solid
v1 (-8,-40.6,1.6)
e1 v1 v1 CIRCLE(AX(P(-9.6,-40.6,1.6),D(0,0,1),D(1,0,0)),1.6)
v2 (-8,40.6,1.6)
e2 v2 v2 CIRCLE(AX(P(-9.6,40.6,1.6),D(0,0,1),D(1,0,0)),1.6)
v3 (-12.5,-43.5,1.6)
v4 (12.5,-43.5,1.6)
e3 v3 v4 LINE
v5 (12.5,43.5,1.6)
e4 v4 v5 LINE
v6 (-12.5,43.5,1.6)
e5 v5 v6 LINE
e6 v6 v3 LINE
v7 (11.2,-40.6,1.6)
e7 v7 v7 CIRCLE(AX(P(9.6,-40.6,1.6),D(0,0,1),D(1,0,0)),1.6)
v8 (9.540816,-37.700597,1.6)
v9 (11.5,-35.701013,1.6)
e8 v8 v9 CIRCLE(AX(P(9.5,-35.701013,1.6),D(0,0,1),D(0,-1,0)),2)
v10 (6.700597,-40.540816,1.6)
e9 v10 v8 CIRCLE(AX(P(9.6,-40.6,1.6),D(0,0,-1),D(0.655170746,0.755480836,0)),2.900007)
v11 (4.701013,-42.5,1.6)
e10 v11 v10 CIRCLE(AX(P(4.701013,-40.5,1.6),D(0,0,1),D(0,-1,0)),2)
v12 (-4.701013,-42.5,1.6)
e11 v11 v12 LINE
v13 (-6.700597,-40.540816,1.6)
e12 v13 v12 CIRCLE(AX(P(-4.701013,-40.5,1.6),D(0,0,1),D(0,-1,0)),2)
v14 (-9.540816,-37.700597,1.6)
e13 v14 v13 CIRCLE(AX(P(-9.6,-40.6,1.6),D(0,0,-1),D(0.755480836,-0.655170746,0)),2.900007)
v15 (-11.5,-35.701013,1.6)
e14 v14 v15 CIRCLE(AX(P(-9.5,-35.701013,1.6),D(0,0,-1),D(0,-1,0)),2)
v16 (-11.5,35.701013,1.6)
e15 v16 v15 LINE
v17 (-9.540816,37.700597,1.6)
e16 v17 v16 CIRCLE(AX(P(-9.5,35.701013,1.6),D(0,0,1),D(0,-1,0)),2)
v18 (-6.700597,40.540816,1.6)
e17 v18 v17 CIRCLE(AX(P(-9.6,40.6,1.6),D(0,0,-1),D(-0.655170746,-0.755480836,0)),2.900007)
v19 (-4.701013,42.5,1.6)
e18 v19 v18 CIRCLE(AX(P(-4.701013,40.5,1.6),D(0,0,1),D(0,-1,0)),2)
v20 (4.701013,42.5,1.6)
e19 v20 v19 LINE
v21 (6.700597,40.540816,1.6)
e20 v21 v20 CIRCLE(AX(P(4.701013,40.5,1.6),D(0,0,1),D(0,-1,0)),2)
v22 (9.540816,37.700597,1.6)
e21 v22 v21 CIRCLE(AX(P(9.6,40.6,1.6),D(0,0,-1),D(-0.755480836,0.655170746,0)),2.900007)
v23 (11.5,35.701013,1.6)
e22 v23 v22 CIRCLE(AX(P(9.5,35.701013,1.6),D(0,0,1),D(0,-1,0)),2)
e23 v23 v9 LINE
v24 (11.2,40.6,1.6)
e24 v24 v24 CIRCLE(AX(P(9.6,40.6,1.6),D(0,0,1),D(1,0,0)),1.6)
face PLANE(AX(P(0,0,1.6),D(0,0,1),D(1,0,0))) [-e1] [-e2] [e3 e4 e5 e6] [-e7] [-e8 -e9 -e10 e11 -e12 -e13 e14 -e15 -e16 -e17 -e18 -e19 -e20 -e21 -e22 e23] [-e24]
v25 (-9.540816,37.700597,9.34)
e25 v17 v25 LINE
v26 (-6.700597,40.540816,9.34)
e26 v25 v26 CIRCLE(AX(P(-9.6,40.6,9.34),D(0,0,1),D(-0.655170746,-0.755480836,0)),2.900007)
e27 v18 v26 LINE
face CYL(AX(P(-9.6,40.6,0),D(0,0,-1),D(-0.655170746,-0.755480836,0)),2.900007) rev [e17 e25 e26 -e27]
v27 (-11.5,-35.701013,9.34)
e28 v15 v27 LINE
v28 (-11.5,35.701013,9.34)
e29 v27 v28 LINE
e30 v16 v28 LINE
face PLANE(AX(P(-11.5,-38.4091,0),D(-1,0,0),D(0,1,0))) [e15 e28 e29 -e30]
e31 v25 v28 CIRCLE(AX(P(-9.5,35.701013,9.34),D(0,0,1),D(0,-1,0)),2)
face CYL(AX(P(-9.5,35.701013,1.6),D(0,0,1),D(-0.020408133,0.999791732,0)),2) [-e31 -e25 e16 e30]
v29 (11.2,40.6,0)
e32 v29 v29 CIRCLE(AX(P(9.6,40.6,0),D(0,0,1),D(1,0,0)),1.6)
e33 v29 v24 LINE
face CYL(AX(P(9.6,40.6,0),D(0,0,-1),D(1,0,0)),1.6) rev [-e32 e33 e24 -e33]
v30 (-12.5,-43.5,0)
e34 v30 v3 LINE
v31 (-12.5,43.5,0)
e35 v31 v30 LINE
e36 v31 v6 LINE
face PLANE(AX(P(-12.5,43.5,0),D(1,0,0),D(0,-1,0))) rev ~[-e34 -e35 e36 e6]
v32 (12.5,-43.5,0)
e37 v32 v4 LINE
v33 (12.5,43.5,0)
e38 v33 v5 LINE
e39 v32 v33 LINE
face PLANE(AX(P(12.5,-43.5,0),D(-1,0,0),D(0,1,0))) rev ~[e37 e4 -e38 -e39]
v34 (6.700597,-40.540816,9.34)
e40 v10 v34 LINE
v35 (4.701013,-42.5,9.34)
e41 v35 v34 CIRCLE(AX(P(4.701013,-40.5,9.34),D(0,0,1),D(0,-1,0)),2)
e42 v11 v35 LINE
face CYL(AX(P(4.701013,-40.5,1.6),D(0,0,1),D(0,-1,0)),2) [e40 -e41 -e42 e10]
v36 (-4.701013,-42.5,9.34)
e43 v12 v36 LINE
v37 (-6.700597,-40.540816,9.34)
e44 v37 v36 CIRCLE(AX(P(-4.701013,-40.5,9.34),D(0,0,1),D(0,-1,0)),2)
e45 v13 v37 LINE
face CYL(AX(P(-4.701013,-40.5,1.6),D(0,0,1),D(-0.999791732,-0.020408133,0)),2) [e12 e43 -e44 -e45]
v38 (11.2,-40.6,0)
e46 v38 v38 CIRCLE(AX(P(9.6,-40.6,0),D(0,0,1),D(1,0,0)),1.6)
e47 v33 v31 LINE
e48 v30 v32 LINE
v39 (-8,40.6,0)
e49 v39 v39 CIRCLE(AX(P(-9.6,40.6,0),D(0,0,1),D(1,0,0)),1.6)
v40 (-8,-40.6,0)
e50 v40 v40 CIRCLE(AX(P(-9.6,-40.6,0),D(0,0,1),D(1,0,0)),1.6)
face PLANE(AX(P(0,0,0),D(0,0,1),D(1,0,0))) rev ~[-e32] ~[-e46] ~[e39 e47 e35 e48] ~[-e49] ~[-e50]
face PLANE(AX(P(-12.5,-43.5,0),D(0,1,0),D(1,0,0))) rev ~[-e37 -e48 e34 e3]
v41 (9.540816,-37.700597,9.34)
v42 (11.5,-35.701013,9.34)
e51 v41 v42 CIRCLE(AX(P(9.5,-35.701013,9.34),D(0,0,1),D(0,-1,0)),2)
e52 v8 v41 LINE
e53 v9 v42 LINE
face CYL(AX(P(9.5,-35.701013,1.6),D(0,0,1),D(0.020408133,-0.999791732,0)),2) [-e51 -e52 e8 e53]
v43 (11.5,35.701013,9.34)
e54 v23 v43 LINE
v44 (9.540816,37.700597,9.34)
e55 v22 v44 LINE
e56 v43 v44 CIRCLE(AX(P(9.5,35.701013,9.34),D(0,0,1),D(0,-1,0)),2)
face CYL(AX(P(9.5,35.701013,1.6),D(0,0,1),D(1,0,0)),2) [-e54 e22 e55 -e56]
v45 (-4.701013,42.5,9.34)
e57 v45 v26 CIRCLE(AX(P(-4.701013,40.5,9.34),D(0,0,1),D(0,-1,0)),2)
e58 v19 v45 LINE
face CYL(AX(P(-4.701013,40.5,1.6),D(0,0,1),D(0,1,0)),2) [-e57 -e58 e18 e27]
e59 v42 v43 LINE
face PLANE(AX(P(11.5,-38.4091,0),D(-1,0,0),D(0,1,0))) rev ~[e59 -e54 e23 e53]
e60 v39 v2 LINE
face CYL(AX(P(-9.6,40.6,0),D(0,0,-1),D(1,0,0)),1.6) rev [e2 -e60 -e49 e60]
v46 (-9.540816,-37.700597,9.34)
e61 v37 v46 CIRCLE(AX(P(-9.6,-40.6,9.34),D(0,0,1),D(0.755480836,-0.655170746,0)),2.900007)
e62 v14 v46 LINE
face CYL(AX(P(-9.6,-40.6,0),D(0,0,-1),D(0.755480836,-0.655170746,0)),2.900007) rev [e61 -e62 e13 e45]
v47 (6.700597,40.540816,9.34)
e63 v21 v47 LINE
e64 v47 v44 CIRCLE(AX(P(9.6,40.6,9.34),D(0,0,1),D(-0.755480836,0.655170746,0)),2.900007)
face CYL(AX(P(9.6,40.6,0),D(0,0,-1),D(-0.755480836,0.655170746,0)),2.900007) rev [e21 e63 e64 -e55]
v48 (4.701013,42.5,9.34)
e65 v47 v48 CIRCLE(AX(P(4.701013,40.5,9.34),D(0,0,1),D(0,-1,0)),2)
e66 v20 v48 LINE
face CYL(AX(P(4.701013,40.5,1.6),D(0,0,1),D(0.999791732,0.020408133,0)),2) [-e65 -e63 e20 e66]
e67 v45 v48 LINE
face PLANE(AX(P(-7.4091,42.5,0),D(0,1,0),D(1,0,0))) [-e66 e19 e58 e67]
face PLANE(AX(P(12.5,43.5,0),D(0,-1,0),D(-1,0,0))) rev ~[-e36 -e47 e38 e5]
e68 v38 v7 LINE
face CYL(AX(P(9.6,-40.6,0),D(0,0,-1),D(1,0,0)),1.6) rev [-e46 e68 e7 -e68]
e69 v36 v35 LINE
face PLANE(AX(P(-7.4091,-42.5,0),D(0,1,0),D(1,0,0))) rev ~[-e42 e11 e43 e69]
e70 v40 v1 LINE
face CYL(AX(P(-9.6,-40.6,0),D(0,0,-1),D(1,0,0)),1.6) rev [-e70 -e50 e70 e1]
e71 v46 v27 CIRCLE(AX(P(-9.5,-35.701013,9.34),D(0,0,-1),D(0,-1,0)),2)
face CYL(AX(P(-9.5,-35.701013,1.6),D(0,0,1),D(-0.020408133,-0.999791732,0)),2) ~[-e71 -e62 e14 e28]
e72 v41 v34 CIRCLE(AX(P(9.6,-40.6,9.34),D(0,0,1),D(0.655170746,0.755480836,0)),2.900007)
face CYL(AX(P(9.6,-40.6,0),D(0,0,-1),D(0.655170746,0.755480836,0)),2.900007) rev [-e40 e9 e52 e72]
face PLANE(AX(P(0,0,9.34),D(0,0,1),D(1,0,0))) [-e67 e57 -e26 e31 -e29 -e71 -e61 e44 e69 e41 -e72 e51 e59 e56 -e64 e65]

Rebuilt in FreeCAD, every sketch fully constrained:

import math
import FreeCAD as App
import Part
import Sketcher
Q = App.Units.Quantity


def edges_at(feature, points):
    """Names of the edges that pass closest to the given points."""
    edges = feature.Shape.Edges
    near = lambda p: min(range(len(edges)), key=lambda i: edges[i].distToShape(Part.Vertex(*p))[0])
    return sorted({f"Edge{near(p) + 1}" for p in points})

doc = App.newDocument("Part")
body = doc.addObject("PartDesign::Body", "Body")

sketch1 = body.newObject("Sketcher::SketchObject", "Sketch")
sketch1.AttachmentSupport = (doc.getObject("XY_Plane"), [""])
sketch1.MapMode = "FlatFace"
sketch1.addGeometry(Part.LineSegment(App.Vector(-12.5, 43.5, 0), App.Vector(-12.5, -43.5, 0)), False)
sketch1.addGeometry(Part.LineSegment(App.Vector(-12.5, -43.5, 0), App.Vector(12.5, -43.5, 0)), False)
sketch1.addGeometry(Part.LineSegment(App.Vector(12.5, -43.5, 0), App.Vector(12.5, 43.5, 0)), False)
sketch1.addGeometry(Part.LineSegment(App.Vector(12.5, 43.5, 0), App.Vector(-12.5, 43.5, 0)), False)
sketch1.addGeometry(Part.Circle(App.Vector(-9.6, -40.6, 0), App.Vector(0, 0, 1), 1.6), False)
sketch1.addGeometry(Part.Circle(App.Vector(9.6, -40.6, 0), App.Vector(0, 0, 1), 1.6), False)
sketch1.addGeometry(Part.Circle(App.Vector(-9.6, 40.6, 0), App.Vector(0, 0, 1), 1.6), False)
sketch1.addGeometry(Part.Circle(App.Vector(9.6, 40.6, 0), App.Vector(0, 0, 1), 1.6), False)
sketch1.addConstraint(Sketcher.Constraint("Coincident", 0, 2, 1, 1))
sketch1.addConstraint(Sketcher.Constraint("Coincident", 1, 2, 2, 1))
sketch1.addConstraint(Sketcher.Constraint("Coincident", 2, 2, 3, 1))
sketch1.addConstraint(Sketcher.Constraint("Coincident", 3, 2, 0, 1))
sketch1.addConstraint(Sketcher.Constraint("Vertical", 0))
sketch1.addConstraint(Sketcher.Constraint("Horizontal", 1))
sketch1.addConstraint(Sketcher.Constraint("Vertical", 2))
sketch1.addConstraint(Sketcher.Constraint("Horizontal", 3))
sketch1.addConstraint(Sketcher.Constraint("Equal", 4, 5))
sketch1.addConstraint(Sketcher.Constraint("Equal", 5, 6))
sketch1.addConstraint(Sketcher.Constraint("Equal", 6, 7))
sketch1.addConstraint(Sketcher.Constraint("Symmetric", 5, 3, 6, 3, -1, 1))
sketch1.addConstraint(Sketcher.Constraint("Symmetric", 4, 3, 7, 3, -1, 1))
sketch1.addConstraint(Sketcher.Constraint("Symmetric", 0, 2, 2, 2, -1, 1))
sketch1.addConstraint(Sketcher.Constraint("Symmetric", 4, 3, 5, 3, -2))
sketch1.addConstraint(Sketcher.Constraint("Diameter", 4, Q("3.2 mm")))
sketch1.addConstraint(Sketcher.Constraint("DistanceX", 1, 1, 1, 2, Q("25 mm")))
sketch1.addConstraint(Sketcher.Constraint("DistanceY", 0, 2, 0, 1, Q("87 mm")))
sketch1.addConstraint(Sketcher.Constraint("DistanceX", 4, 3, 5, 3, Q("19.2 mm")))
sketch1.addConstraint(Sketcher.Constraint("DistanceY", 4, 3, 6, 3, Q("81.2 mm")))
pad1 = body.newObject("PartDesign::Pad", "Pad")
pad1.Profile = sketch1
pad1.Length = 1.6

sketch2 = body.newObject("Sketcher::SketchObject", "Sketch001")
sketch2.AttachmentSupport = (doc.getObject("XY_Plane"), [""])
sketch2.MapMode = "FlatFace"
sketch2.addGeometry(Part.ArcOfCircle(Part.Circle(App.Vector(-9.6, -40.6, 0), App.Vector(0, 0, 1), 2.9), math.radians(-41), math.radians(131)), False)
sketch2.addGeometry(Part.LineSegment(App.Vector(-7.4, -42.5, 0), App.Vector(7.4, -42.5, 0)), False)
sketch2.addGeometry(Part.ArcOfCircle(Part.Circle(App.Vector(9.6, -40.6, 0), App.Vector(0, 0, 1), 2.9), math.radians(49), math.radians(221)), False)
sketch2.addGeometry(Part.LineSegment(App.Vector(11.5, -38.4, 0), App.Vector(11.5, 38.4, 0)), False)
sketch2.addGeometry(Part.ArcOfCircle(Part.Circle(App.Vector(9.6, 40.6, 0), App.Vector(0, 0, 1), 2.9), math.radians(139), math.radians(311)), False)
sketch2.addGeometry(Part.LineSegment(App.Vector(7.4, 42.5, 0), App.Vector(-7.4, 42.5, 0)), False)
sketch2.addGeometry(Part.ArcOfCircle(Part.Circle(App.Vector(-9.6, 40.6, 0), App.Vector(0, 0, 1), 2.9), math.radians(-131), math.radians(41)), False)
sketch2.addGeometry(Part.LineSegment(App.Vector(-11.5, 38.4, 0), App.Vector(-11.5, -38.4, 0)), False)
sketch2.addConstraint(Sketcher.Constraint("Coincident", 0, 1, 1, 1))
sketch2.addConstraint(Sketcher.Constraint("Coincident", 1, 2, 2, 2))
sketch2.addConstraint(Sketcher.Constraint("Coincident", 2, 1, 3, 1))
sketch2.addConstraint(Sketcher.Constraint("Coincident", 3, 2, 4, 2))
sketch2.addConstraint(Sketcher.Constraint("Coincident", 4, 1, 5, 1))
sketch2.addConstraint(Sketcher.Constraint("Coincident", 5, 2, 6, 2))
sketch2.addConstraint(Sketcher.Constraint("Coincident", 6, 1, 7, 1))
sketch2.addConstraint(Sketcher.Constraint("Coincident", 7, 2, 0, 2))
sketch2.addConstraint(Sketcher.Constraint("Horizontal", 1))
sketch2.addConstraint(Sketcher.Constraint("Vertical", 3))
sketch2.addConstraint(Sketcher.Constraint("Horizontal", 5))
sketch2.addConstraint(Sketcher.Constraint("Vertical", 7))
sketch2.addConstraint(Sketcher.Constraint("Equal", 0, 2))
sketch2.addConstraint(Sketcher.Constraint("Equal", 2, 4))
sketch2.addConstraint(Sketcher.Constraint("Equal", 4, 6))
sketch2.addConstraint(Sketcher.Constraint("Symmetric", 0, 3, 4, 3, -1, 1))
sketch2.addConstraint(Sketcher.Constraint("Symmetric", 2, 3, 6, 3, -1, 1))
sketch2.addConstraint(Sketcher.Constraint("Symmetric", 0, 3, 2, 3, -2))
sketch2.addConstraint(Sketcher.Constraint("Horizontal", 3, 2, 6, 1))
sketch2.addConstraint(Sketcher.Constraint("Vertical", 1, 2, 4, 1))
sketch2.addConstraint(Sketcher.Constraint("Radius", 0, Q("2.9 mm")))
sketch2.addConstraint(Sketcher.Constraint("DistanceX", 0, 3, 2, 3, Q("19.2 mm")))
sketch2.addConstraint(Sketcher.Constraint("DistanceY", 2, 3, 4, 3, Q("81.2 mm")))
sketch2.addConstraint(Sketcher.Constraint("DistanceX", 6, 1, 3, 2, Q("23 mm")))
sketch2.addConstraint(Sketcher.Constraint("DistanceY", 0, 1, -1, 1, Q("42.5 mm")))
pad2 = body.newObject("PartDesign::Pad", "Pad001")
pad2.Profile = sketch2
pad2.Length = 9.34
doc.recompute()

fillet = body.newObject("PartDesign::Fillet", "Fillet")
fillet.Base = (pad2, edges_at(pad2, [
    (11.5, -38.409, 5.47),
    (7.409, -42.5, 5.47),
    (-7.409, -42.5, 5.47),
    (-11.5, -38.409, 5.47),
    (11.5, 38.409, 5.47),
    (7.409, 42.5, 5.47),
    (-7.409, 42.5, 5.47),
    (-11.5, 38.409, 5.47),
]))
fillet.Radius = 2

doc.recompute()
